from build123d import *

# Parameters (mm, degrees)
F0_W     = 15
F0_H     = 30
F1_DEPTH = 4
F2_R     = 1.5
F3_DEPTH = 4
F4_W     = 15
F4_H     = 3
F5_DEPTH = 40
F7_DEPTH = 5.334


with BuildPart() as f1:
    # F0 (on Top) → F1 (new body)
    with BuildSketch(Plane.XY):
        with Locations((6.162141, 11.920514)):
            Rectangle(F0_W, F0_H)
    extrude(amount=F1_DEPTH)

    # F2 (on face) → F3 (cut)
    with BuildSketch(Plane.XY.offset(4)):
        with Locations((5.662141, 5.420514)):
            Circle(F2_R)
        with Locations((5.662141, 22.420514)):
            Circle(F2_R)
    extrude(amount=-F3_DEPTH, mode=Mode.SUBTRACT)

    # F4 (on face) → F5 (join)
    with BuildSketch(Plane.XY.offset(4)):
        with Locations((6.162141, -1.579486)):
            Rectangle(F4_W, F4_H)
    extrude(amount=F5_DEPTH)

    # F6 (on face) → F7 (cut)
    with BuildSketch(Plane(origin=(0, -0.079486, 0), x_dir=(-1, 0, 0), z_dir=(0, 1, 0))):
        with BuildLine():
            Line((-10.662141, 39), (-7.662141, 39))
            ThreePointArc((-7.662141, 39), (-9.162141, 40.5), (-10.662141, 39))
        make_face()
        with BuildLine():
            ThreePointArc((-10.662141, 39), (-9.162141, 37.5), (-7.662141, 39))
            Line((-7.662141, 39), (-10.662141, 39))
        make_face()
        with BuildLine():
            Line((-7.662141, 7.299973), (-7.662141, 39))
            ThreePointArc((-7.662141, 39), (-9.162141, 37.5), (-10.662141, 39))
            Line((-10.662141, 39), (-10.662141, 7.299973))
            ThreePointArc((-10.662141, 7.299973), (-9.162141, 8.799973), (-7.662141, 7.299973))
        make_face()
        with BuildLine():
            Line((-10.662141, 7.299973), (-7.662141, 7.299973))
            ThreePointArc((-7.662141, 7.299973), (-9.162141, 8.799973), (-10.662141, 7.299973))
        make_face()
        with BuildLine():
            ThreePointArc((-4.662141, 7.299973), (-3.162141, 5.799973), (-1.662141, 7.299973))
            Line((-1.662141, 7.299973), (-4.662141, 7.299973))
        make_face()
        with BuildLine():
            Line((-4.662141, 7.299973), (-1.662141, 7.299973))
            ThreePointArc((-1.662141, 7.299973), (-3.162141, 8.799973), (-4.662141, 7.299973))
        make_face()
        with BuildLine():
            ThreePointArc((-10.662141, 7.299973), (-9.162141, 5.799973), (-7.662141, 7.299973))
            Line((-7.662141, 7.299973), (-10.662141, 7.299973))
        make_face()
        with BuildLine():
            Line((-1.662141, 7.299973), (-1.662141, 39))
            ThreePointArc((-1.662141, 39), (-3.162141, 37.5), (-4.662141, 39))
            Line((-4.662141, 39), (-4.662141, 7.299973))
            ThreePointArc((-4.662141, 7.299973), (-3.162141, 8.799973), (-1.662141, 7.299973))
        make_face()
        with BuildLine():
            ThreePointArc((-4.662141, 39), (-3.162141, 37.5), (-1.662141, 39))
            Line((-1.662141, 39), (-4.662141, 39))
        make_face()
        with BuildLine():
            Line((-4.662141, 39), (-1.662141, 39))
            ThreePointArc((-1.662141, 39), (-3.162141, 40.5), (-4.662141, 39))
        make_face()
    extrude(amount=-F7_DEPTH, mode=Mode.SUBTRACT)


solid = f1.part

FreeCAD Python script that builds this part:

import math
import FreeCAD as App
import Part
import Sketcher
from FreeCAD import Vector


def add_polygon(sketch, points):
    """Adds a closed chain of lines whose ends are joined by coincident constraints."""
    first, n = sketch.GeometryCount, len(points)
    for a, b in zip(points, points[1:] + points[:1]):
        sketch.addGeometry(Part.LineSegment(App.Vector(*a, 0), App.Vector(*b, 0)), False)
    for i in range(n):
        sketch.addConstraint(Sketcher.Constraint("Coincident", first + i, 2, first + (i + 1) % n, 1))

doc = App.newDocument("Part")
body = doc.addObject("PartDesign::Body", "Body")

# Sketch on XY plane
sketch1 = body.newObject("Sketcher::SketchObject", "Sketch")
sketch1.AttachmentSupport = (doc.getObject("XY_Plane"), [""])
sketch1.MapMode = "FlatFace"
add_polygon(sketch1, [(-1, 27), (-1, -3), (14, -3), (14, 27)])  # lines 0-3
sketch1.addConstraint(Sketcher.Constraint("Vertical", 0))
sketch1.addConstraint(Sketcher.Constraint("Horizontal", 1))
sketch1.addConstraint(Sketcher.Constraint("Vertical", 2))
sketch1.addConstraint(Sketcher.Constraint("Horizontal", 3))
sketch1.addConstraint(Sketcher.Constraint("DistanceX", 1, 1, 1, 2, 15.0))
sketch1.addConstraint(Sketcher.Constraint("DistanceY", 0, 2, 0, 1, 30.0))
sketch1.addConstraint(Sketcher.Constraint("DistanceX", 0, 2, -1, 1, 1.337859))
sketch1.addConstraint(Sketcher.Constraint("DistanceY", 0, 2, -1, 1, 3.079486))
pad1 = body.newObject("PartDesign::Pad", "Pad")
pad1.Profile = sketch1
pad1.Length = 4

# Sketch on XY plane
sketch2 = body.newObject("Sketcher::SketchObject", "Sketch001")
sketch2.AttachmentSupport = (doc.getObject("XY_Plane"), [""])
sketch2.MapMode = "FlatFace"
sketch2.AttachmentOffset = App.Placement(Vector(0, 0, 4), App.Rotation())
sketch2.addGeometry(Part.Circle(Vector(5.7, 5.4, 0), Vector(0, 0, 1), 1.5), False)
sketch2.addGeometry(Part.Circle(Vector(5.7, 22.4, 0), Vector(0, 0, 1), 1.5), False)
sketch2.addConstraint(Sketcher.Constraint("Equal", 0, 1))
sketch2.addConstraint(Sketcher.Constraint("Vertical", 0, 3, 1, 3))
sketch2.addConstraint(Sketcher.Constraint("Diameter", 0, 3.0))
sketch2.addConstraint(Sketcher.Constraint("DistanceY", 0, 3, 1, 3, 17.0))
sketch2.addConstraint(Sketcher.Constraint("DistanceX", -1, 1, 0, 3, 5.662141))
sketch2.addConstraint(Sketcher.Constraint("DistanceY", -1, 1, 0, 3, 5.420514))
pocket1 = body.newObject("PartDesign::Pocket", "Pocket")
pocket1.Profile = sketch2
pocket1.Length = 4

# Sketch on XY plane
sketch3 = body.newObject("Sketcher::SketchObject", "Sketch002")
sketch3.AttachmentSupport = (doc.getObject("XY_Plane"), [""])
sketch3.MapMode = "FlatFace"
sketch3.AttachmentOffset = App.Placement(Vector(0, 0, 4), App.Rotation())
add_polygon(sketch3, [(-1.3, -0.1), (-1.3, -3.1), (13.7, -3.1), (13.7, -0.1)])  # lines 0-3
sketch3.addConstraint(Sketcher.Constraint("Vertical", 0))
sketch3.addConstraint(Sketcher.Constraint("Horizontal", 1))
sketch3.addConstraint(Sketcher.Constraint("Vertical", 2))
sketch3.addConstraint(Sketcher.Constraint("Horizontal", 3))
sketch3.addConstraint(Sketcher.Constraint("DistanceX", 1, 1, 1, 2, 15.0))
sketch3.addConstraint(Sketcher.Constraint("DistanceY", 0, 2, 0, 1, 3.0))
sketch3.addConstraint(Sketcher.Constraint("DistanceX", 0, 2, -1, 1, 1.337859))
sketch3.addConstraint(Sketcher.Constraint("DistanceY", 0, 2, -1, 1, 3.079486))
pad2 = body.newObject("PartDesign::Pad", "Pad001")
pad2.Profile = sketch3
pad2.Length = 40

# Sketch on XZ plane
sketch4 = body.newObject("Sketcher::SketchObject", "Sketch003")
sketch4.AttachmentSupport = (doc.getObject("XZ_Plane"), [""])
sketch4.MapMode = "FlatFace"
sketch4.AttachmentOffset = App.Placement(Vector(0, 0, 0.079486), App.Rotation())
sketch4.addGeometry(Part.ArcOfCircle(Part.Circle(Vector(9.2, 39, 0), Vector(0, 0, 1), 1.5), math.radians(0), math.radians(180)), False)
sketch4.addGeometry(Part.LineSegment(Vector(10.7, 39, 0), Vector(10.7, 7.3, 0)), False)
sketch4.addGeometry(Part.ArcOfCircle(Part.Circle(Vector(9.2, 7.3, 0), Vector(0, 0, 1), 1.5), math.radians(180), math.radians(360)), False)
sketch4.addGeometry(Part.LineSegment(Vector(7.7, 7.3, 0), Vector(7.7, 39, 0)), False)
sketch4.addGeometry(Part.ArcOfCircle(Part.Circle(Vector(3.2, 7.3, 0), Vector(0, 0, 1), 1.5), math.radians(180), math.radians(360)), False)
sketch4.addGeometry(Part.LineSegment(Vector(1.7, 7.3, 0), Vector(1.7, 39, 0)), False)
sketch4.addGeometry(Part.ArcOfCircle(Part.Circle(Vector(3.2, 39, 0), Vector(0, 0, 1), 1.5), math.radians(0), math.radians(180)), False)
sketch4.addGeometry(Part.LineSegment(Vector(4.7, 39, 0), Vector(4.7, 7.3, 0)), False)
sketch4.addConstraint(Sketcher.Constraint("Tangent", 0, 1, 1, 1))
sketch4.addConstraint(Sketcher.Constraint("Tangent", 1, 2, 2, 2))
sketch4.addConstraint(Sketcher.Constraint("Tangent", 2, 1, 3, 1))
sketch4.addConstraint(Sketcher.Constraint("Tangent", 3, 2, 0, 2))
sketch4.addConstraint(Sketcher.Constraint("Tangent", 4, 1, 5, 1))
sketch4.addConstraint(Sketcher.Constraint("Tangent", 5, 2, 6, 2))
sketch4.addConstraint(Sketcher.Constraint("Tangent", 6, 1, 7, 1))
sketch4.addConstraint(Sketcher.Constraint("Tangent", 7, 2, 4, 2))
sketch4.addConstraint(Sketcher.Constraint("Vertical", 1))
sketch4.addConstraint(Sketcher.Constraint("Vertical", 3))
sketch4.addConstraint(Sketcher.Constraint("Vertical", 5))
sketch4.addConstraint(Sketcher.Constraint("Vertical", 7))
sketch4.addConstraint(Sketcher.Constraint("Equal", 2, 4))
sketch4.addConstraint(Sketcher.Constraint("Horizontal", 2, 3, 4, 3))
sketch4.addConstraint(Sketcher.Constraint("Horizontal", 0, 3, 6, 3))
sketch4.addConstraint(Sketcher.Constraint("Radius", 0, 1.5))
sketch4.addConstraint(Sketcher.Constraint("DistanceY", -1, 1, 0, 3, 39.0))
sketch4.addConstraint(Sketcher.Constraint("DistanceX", 4, 3, 2, 3, 6.0))
sketch4.addConstraint(Sketcher.Constraint("DistanceY", 1, 2, 1, 1, 31.700027))
sketch4.addConstraint(Sketcher.Constraint("DistanceX", -1, 1, 0, 3, 9.162141))
pocket2 = body.newObject("PartDesign::Pocket", "Pocket001")
pocket2.Profile = sketch4
pocket2.Length = 5.334
pocket2.Reversed = True

doc.recompute()
